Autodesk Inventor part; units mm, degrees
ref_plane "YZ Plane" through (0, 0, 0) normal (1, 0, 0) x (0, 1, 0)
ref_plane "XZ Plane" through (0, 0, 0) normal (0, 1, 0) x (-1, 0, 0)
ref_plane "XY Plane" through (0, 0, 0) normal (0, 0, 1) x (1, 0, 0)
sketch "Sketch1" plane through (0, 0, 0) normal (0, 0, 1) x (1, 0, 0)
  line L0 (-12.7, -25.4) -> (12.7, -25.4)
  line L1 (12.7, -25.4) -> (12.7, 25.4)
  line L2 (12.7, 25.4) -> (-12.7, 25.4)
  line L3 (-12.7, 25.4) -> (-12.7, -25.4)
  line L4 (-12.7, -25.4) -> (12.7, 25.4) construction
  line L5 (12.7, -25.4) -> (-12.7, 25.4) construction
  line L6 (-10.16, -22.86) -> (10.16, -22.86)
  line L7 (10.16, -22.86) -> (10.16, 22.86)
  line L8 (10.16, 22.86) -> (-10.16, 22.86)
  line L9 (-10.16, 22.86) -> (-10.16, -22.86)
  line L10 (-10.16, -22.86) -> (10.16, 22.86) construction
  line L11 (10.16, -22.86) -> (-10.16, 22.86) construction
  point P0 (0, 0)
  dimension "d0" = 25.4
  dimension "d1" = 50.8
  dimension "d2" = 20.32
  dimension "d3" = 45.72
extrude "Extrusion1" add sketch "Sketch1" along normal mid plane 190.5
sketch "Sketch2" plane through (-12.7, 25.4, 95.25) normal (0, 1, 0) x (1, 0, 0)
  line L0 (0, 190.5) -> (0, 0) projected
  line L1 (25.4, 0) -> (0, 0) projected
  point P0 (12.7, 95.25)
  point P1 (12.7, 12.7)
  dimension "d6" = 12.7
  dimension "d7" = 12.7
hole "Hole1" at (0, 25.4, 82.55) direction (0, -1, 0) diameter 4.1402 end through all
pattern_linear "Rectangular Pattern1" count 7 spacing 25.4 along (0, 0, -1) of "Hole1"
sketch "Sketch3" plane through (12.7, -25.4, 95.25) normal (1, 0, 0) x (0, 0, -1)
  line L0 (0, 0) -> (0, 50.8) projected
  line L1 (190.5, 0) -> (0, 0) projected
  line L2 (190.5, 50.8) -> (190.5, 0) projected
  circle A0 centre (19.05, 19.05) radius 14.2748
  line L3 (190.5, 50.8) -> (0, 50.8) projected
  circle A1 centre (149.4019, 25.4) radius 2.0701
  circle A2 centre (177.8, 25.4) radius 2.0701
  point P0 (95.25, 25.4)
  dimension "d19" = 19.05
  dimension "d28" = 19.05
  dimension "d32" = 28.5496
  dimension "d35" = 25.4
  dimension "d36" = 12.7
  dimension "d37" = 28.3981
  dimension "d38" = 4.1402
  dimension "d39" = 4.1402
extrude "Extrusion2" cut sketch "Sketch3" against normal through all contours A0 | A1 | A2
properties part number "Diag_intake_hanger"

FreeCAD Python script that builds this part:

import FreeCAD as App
import Part
import Sketcher

V = App.Vector
Q = App.Units.Quantity

doc = App.newDocument("Part")
body = doc.addObject("PartDesign::Body", "Body")

sketch1 = body.newObject("Sketcher::SketchObject", "Sketch")
sketch1.AttachmentSupport = (doc.getObject("XY_Plane"), [""])
sketch1.MapMode = "FlatFace"
sketch1.addGeometry([
    Part.LineSegment(V(-12.7, 25.4, 0), V(-12.7, -25.4, 0)),
    Part.LineSegment(V(-12.7, -25.4, 0), V(12.7, -25.4, 0)),
    Part.LineSegment(V(12.7, -25.4, 0), V(12.7, 25.4, 0)),
    Part.LineSegment(V(12.7, 25.4, 0), V(-12.7, 25.4, 0)),
    Part.LineSegment(V(10.16, -22.86, 0), V(-10.16, -22.86, 0)),
    Part.LineSegment(V(-10.16, -22.86, 0), V(-10.16, 22.86, 0)),
    Part.LineSegment(V(-10.16, 22.86, 0), V(10.16, 22.86, 0)),
    Part.LineSegment(V(10.16, 22.86, 0), V(10.16, -22.86, 0)),
], False)
sketch1.addConstraint([
    Sketcher.Constraint("Coincident", 0, 2, 1, 1),
    Sketcher.Constraint("Coincident", 1, 2, 2, 1),
    Sketcher.Constraint("Coincident", 2, 2, 3, 1),
    Sketcher.Constraint("Coincident", 3, 2, 0, 1),
    Sketcher.Constraint("Coincident", 4, 2, 5, 1),
    Sketcher.Constraint("Coincident", 5, 2, 6, 1),
    Sketcher.Constraint("Coincident", 6, 2, 7, 1),
    Sketcher.Constraint("Coincident", 7, 2, 4, 1),
    Sketcher.Constraint("Vertical", 0),
    Sketcher.Constraint("Horizontal", 1),
    Sketcher.Constraint("Vertical", 2),
    Sketcher.Constraint("Horizontal", 3),
    Sketcher.Constraint("Horizontal", 4),
    Sketcher.Constraint("Vertical", 5),
    Sketcher.Constraint("Horizontal", 6),
    Sketcher.Constraint("Vertical", 7),
    Sketcher.Constraint("Symmetric", 0, 2, 2, 2, -1, 1),
    Sketcher.Constraint("Symmetric", 4, 2, 6, 2, -1, 1),
    Sketcher.Constraint("DistanceX", 1, 1, 1, 2, Q("1 in")),
    Sketcher.Constraint("DistanceY", 0, 2, 0, 1, Q("2 in")),
    Sketcher.Constraint("DistanceX", 4, 2, 4, 1, Q("0.8 in")),
    Sketcher.Constraint("DistanceY", 5, 1, 5, 2, Q("1.8 in")),
])
pad1 = body.newObject("PartDesign::Pad", "Pad")
pad1.Profile = sketch1
pad1.Length = Q("7.5 in")
pad1.Midplane = True

sketch2 = body.newObject("Sketcher::SketchObject", "Sketch001")
sketch2.AttachmentSupport = (doc.getObject("XZ_Plane"), [""])
sketch2.MapMode = "FlatFace"
sketch2.AttachmentOffset = App.Placement(V(0, 0, -1 * 25.4), App.Rotation())
sketch2.addGeometry(Part.Circle(V(0, 82.55, 0), V(0, 0, 1), 2.0701), False)
sketch2.addConstraint([
    Sketcher.Constraint("PointOnObject", 0, 3, -2),
    Sketcher.Constraint("Diameter", 0, Q("0.163 in")),
    Sketcher.Constraint("DistanceY", -1, 1, 0, 3, Q("3.25 in")),
])
doc.recompute()
hole = body.newObject("PartDesign::Hole", "Hole")
hole.Profile = sketch2
hole.ThreadType = "None"
hole.Diameter = Q("0.163 in")
hole.DepthType = "ThroughAll"
hole.Reversed = True
doc.recompute()

linearpattern = body.newObject("PartDesign::LinearPattern", "LinearPattern")
linearpattern.Originals = [hole]
linearpattern.Direction = (doc.getObject("Z_Axis"), [""])
linearpattern.Mode = "offset"
linearpattern.Offset = Q("1 in")
linearpattern.Occurrences = 7
linearpattern.Reversed = True
body.Tip = linearpattern

sketch3 = body.newObject("Sketcher::SketchObject", "Sketch002")
sketch3.AttachmentSupport = (doc.getObject("YZ_Plane"), [""])
sketch3.MapMode = "FlatFace"
sketch3.AttachmentOffset = App.Placement(V(0, 0, 0.5 * 25.4), App.Rotation())
sketch3.addGeometry([
    Part.Circle(V(-6.35, 76.2, 0), V(0, 0, 1), 14.2748),
    Part.Circle(V(0, -54.1519, 0), V(0, 0, 1), 2.0701),
    Part.Circle(V(0, -82.55, 0), V(0, 0, 1), 2.0701),
], False)
sketch3.addConstraint([
    Sketcher.Constraint("Equal", 1, 2),
    Sketcher.Constraint("PointOnObject", 1, 3, -2),
    Sketcher.Constraint("PointOnObject", 2, 3, -2),
    Sketcher.Constraint("Diameter", 0, Q("1.124 in")),
    Sketcher.Constraint("Diameter", 1, Q("0.163 in")),
    Sketcher.Constraint("DistanceY", -1, 1, 0, 3, Q("3 in")),
    Sketcher.Constraint("DistanceX", 0, 3, -1, 1, Q("0.25 in")),
    Sketcher.Constraint("DistanceY", 2, 3, -1, 1, Q("3.25 in")),
    Sketcher.Constraint("DistanceY", 2, 3, 1, 3, Q("28.398 mm")),
])
pocket1 = body.newObject("PartDesign::Pocket", "Pocket")
pocket1.Profile = sketch3
pocket1.Type = "ThroughAll"

doc.recompute()
